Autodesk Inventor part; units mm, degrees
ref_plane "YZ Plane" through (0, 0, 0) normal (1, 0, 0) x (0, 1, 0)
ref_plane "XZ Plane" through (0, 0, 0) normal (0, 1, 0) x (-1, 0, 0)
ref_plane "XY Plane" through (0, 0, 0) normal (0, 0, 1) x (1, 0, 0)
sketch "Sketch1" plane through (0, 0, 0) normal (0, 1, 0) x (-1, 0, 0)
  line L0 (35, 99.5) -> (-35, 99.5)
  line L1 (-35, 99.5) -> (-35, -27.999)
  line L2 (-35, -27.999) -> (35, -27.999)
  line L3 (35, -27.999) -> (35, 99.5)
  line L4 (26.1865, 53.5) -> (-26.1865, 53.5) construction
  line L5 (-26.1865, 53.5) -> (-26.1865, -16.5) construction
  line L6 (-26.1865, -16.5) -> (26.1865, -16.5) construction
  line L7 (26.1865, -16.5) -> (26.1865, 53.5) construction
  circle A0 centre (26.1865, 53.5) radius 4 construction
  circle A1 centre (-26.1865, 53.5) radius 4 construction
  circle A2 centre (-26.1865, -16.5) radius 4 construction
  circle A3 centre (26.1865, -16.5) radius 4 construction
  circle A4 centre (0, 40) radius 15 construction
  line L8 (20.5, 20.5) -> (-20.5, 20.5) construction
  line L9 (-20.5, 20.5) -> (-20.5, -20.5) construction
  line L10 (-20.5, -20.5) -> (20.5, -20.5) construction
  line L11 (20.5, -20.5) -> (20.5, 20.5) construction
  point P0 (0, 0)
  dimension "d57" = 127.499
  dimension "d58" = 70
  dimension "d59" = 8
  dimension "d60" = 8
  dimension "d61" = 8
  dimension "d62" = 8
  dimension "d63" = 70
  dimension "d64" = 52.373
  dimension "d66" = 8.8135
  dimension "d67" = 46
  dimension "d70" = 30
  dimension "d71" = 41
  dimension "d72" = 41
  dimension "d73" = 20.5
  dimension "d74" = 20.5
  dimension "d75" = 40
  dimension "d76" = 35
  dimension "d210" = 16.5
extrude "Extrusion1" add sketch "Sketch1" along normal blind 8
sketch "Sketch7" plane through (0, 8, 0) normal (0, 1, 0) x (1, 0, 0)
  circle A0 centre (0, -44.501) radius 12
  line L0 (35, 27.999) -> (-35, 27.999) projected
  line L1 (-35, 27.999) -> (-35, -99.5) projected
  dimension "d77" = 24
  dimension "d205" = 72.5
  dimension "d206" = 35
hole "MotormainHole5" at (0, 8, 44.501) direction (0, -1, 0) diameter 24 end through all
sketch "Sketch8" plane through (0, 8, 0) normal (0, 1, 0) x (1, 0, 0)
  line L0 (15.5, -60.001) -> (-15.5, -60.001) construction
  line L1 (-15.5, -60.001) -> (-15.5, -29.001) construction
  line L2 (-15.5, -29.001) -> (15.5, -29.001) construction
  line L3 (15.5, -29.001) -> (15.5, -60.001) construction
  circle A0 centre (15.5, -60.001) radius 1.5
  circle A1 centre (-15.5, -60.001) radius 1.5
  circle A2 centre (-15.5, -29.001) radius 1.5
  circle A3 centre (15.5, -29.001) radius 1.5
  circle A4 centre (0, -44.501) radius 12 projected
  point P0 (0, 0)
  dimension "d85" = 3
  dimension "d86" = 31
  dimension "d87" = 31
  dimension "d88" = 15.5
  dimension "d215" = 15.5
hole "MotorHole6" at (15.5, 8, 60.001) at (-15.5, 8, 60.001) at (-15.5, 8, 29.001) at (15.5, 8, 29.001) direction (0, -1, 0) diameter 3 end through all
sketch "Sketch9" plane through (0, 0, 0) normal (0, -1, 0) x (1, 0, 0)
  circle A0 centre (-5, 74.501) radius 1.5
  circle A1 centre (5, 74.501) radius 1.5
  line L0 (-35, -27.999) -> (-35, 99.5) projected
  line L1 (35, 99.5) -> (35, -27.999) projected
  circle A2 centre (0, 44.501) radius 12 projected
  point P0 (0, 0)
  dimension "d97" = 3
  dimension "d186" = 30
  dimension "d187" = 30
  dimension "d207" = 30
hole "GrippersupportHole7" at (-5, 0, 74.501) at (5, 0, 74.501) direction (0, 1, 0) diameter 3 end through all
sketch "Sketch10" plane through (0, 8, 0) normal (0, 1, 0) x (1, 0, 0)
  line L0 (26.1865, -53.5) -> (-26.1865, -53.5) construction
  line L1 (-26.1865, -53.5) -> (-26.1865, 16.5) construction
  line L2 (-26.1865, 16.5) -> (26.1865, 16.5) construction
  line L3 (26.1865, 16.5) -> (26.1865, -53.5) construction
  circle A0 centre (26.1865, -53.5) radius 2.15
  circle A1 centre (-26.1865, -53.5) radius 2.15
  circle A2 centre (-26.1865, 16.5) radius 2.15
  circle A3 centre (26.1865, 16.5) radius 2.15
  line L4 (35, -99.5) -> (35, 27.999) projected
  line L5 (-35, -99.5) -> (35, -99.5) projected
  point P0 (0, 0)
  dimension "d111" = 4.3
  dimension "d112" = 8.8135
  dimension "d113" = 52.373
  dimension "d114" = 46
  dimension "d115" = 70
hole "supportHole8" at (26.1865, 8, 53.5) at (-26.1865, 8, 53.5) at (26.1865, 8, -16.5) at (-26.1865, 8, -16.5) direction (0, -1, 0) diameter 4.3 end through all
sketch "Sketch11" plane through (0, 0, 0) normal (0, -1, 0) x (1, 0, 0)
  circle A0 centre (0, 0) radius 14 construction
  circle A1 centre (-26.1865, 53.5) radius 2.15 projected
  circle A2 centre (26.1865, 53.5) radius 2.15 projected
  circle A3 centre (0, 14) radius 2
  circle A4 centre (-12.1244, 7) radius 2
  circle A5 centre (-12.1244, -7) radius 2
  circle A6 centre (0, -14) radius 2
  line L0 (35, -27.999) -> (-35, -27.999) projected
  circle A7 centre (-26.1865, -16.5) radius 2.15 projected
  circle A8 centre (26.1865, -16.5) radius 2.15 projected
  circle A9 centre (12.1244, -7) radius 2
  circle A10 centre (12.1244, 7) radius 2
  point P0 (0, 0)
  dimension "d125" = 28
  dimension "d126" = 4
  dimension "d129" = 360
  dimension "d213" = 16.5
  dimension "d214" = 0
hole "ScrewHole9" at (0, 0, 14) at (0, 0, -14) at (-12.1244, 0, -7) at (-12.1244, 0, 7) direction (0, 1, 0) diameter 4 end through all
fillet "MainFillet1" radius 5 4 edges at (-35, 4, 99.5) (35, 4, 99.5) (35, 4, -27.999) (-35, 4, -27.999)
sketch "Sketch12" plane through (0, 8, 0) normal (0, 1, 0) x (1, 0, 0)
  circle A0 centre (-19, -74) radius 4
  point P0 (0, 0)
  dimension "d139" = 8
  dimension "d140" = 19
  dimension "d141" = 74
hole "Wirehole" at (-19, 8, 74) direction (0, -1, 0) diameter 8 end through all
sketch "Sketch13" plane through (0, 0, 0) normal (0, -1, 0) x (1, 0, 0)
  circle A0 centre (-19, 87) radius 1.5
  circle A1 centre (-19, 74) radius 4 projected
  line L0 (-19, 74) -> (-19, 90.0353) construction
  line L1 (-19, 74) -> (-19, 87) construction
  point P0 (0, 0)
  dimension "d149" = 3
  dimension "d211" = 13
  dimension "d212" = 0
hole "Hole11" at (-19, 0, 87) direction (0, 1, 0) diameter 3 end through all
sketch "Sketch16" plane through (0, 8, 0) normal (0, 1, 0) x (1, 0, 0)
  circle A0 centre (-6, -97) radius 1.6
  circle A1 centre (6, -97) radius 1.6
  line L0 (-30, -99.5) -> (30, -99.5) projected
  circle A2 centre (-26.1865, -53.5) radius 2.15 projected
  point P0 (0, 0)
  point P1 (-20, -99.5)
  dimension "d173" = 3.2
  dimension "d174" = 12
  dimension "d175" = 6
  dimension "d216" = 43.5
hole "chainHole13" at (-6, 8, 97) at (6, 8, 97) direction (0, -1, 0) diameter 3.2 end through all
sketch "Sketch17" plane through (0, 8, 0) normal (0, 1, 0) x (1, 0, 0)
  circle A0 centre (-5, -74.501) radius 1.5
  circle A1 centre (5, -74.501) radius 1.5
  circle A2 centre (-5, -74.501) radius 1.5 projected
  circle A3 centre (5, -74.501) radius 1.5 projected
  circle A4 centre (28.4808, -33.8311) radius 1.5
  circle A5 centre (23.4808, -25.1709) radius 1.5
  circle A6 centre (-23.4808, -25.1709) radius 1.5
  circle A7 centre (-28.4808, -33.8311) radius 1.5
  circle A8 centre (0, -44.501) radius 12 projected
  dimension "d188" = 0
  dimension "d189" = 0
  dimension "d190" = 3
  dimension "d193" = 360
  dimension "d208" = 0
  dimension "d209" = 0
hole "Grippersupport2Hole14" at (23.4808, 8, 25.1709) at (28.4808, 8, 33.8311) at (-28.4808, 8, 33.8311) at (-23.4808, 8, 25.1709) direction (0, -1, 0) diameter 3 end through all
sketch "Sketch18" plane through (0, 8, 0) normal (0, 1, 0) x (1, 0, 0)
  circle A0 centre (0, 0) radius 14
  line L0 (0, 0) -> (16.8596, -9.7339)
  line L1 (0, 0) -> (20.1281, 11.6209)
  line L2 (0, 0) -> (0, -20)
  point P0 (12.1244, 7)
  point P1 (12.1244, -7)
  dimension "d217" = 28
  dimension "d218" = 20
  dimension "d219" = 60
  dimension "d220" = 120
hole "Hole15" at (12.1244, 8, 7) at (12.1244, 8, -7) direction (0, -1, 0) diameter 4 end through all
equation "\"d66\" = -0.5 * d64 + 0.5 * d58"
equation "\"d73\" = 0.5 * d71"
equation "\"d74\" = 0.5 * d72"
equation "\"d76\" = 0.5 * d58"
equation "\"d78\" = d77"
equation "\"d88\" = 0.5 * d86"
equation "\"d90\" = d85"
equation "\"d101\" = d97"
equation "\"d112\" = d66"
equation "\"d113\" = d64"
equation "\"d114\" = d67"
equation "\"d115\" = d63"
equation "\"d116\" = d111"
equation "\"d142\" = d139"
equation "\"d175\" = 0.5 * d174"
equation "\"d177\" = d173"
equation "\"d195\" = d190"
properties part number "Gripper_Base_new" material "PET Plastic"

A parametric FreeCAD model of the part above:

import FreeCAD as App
import Part
import Sketcher
from FreeCAD import Vector
Q = App.Units.Quantity


def edges_at(feature, points):
    """Names of the edges that pass closest to the given points."""
    edges = feature.Shape.Edges
    near = lambda p: min(range(len(edges)), key=lambda i: edges[i].distToShape(Part.Vertex(*p))[0])
    return sorted({f"Edge{near(p) + 1}" for p in points})


def add_polygon(sketch, points):
    """Adds a closed chain of lines whose ends are joined by coincident constraints."""
    first, n = sketch.GeometryCount, len(points)
    for a, b in zip(points, points[1:] + points[:1]):
        sketch.addGeometry(Part.LineSegment(App.Vector(*a, 0), App.Vector(*b, 0)), False)
    for i in range(n):
        sketch.addConstraint(Sketcher.Constraint("Coincident", first + i, 2, first + (i + 1) % n, 1))

doc = App.newDocument("Part")
params = doc.addObject("Spreadsheet::Sheet", "Params")
for row, (alias, value) in enumerate([
    ("sketch1_width", "70 mm"),
    ("pad1_length", "8 mm"),
    ("sketch2_diameter", "24 mm"),
    ("hole_diameter", "24 mm"),
    ("sketch3_diameter", "3 mm"),
    ("hole2_diameter", "3 mm"),
    ("sketch4_diameter", "3 mm"),
    ("hole3_diameter", "3 mm"),
    ("sketch5_diameter", "4.3 mm"),
    ("hole4_diameter", "4.3 mm"),
    ("sketch6_diameter", "4 mm"),
    ("hole5_diameter", "4 mm"),
    ("fillet_radius", "5 mm"),
    ("sketch7_diameter", "8 mm"),
    ("hole6_diameter", "8 mm"),
    ("sketch8_diameter", "3 mm"),
    ("hole7_diameter", "3 mm"),
    ("sketch9_diameter", "3.2 mm"),
    ("hole8_diameter", "3.2 mm"),
    ("sketch10_diameter", "3 mm"),
    ("hole9_diameter", "3 mm"),
    ("sketch11_diameter", "4 mm"),
    ("hole10_diameter", "4 mm"),
], start=1):
    params.set(f"A{row}", alias)
    params.set(f"B{row}", "=" + value)
    params.setAlias(f"B{row}", alias)

body = doc.addObject("PartDesign::Body", "Body")

# Sketch on XZ plane
sketch1 = body.newObject("Sketcher::SketchObject", "Sketch")
sketch1.AttachmentSupport = (doc.getObject("XZ_Plane"), [""])
sketch1.MapMode = "FlatFace"
add_polygon(sketch1, [(-35, -27.999), (-35, 99.5), (35, 99.5), (35, -27.999)])  # lines 0-3
sketch1.addConstraint(Sketcher.Constraint("Vertical", 0))
sketch1.addConstraint(Sketcher.Constraint("Horizontal", 1))
sketch1.addConstraint(Sketcher.Constraint("Vertical", 2))
sketch1.addConstraint(Sketcher.Constraint("Horizontal", 3))
sketch1.addConstraint(Sketcher.Constraint("DistanceX", 1, 1, 1, 2, Q("70 mm")))
sketch1.addConstraint(Sketcher.Constraint("DistanceX", 0, 2, -1, 1, Q("35 mm")))
sketch1.addConstraint(Sketcher.Constraint("DistanceY", 0, 1, 0, 2, Q("127.499 mm")))
sketch1.addConstraint(Sketcher.Constraint("DistanceY", -1, 1, 0, 2, Q("99.5 mm")))
sketch1.setExpression("Constraints[8]", "Params.sketch1_width")
pad1 = body.newObject("PartDesign::Pad", "Pad")
pad1.Profile = sketch1
pad1.setExpression("Length", "Params.pad1_length")
pad1.Reversed = True

# Sketch on XZ plane
sketch2 = body.newObject("Sketcher::SketchObject", "Sketch001")
sketch2.AttachmentSupport = (doc.getObject("XZ_Plane"), [""])
sketch2.MapMode = "FlatFace"
sketch2.AttachmentOffset = App.Placement(Vector(0, 0, -8), App.Rotation())
sketch2.addGeometry(Part.Circle(Vector(0, 44.501, 0), Vector(0, 0, 1), 12), False)
sketch2.addConstraint(Sketcher.Constraint("PointOnObject", 0, 3, -2))
sketch2.addConstraint(Sketcher.Constraint("Diameter", 0, Q("24 mm")))
sketch2.addConstraint(Sketcher.Constraint("DistanceY", -1, 1, 0, 3, Q("44.501 mm")))
sketch2.setExpression("Constraints[1]", "Params.sketch2_diameter")
doc.recompute()
hole = body.newObject("PartDesign::Hole", "Hole")
hole.Profile = sketch2
hole.ThreadType = "None"
hole.setExpression("Diameter", "Params.hole_diameter")
hole.DepthType = "ThroughAll"
hole.Reversed = True

# Sketch on XZ plane
sketch3 = body.newObject("Sketcher::SketchObject", "Sketch002")
sketch3.AttachmentSupport = (doc.getObject("XZ_Plane"), [""])
sketch3.MapMode = "FlatFace"
sketch3.AttachmentOffset = App.Placement(Vector(0, 0, -8), App.Rotation())
sketch3.addGeometry(Part.Circle(Vector(15.5, 60.001, 0), Vector(0, 0, 1), 1.5), False)
sketch3.addGeometry(Part.Circle(Vector(-15.5, 60.001, 0), Vector(0, 0, 1), 1.5), False)
sketch3.addGeometry(Part.Circle(Vector(-15.5, 29.001, 0), Vector(0, 0, 1), 1.5), False)
sketch3.addGeometry(Part.Circle(Vector(15.5, 29.001, 0), Vector(0, 0, 1), 1.5), False)
sketch3.addConstraint(Sketcher.Constraint("Equal", 0, 1))
sketch3.addConstraint(Sketcher.Constraint("Equal", 1, 2))
sketch3.addConstraint(Sketcher.Constraint("Equal", 2, 3))
sketch3.addConstraint(Sketcher.Constraint("Symmetric", 0, 3, 1, 3, -2))
sketch3.addConstraint(Sketcher.Constraint("Symmetric", 2, 3, 3, 3, -2))
sketch3.addConstraint(Sketcher.Constraint("Vertical", 1, 3, 2, 3))
sketch3.addConstraint(Sketcher.Constraint("Diameter", 0, Q("3 mm")))
sketch3.addConstraint(Sketcher.Constraint("DistanceX", 1, 3, 0, 3, Q("31 mm")))
sketch3.addConstraint(Sketcher.Constraint("DistanceY", 2, 3, 1, 3, Q("31 mm")))
sketch3.addConstraint(Sketcher.Constraint("DistanceY", -1, 1, 0, 3, Q("60.001 mm")))
sketch3.setExpression("Constraints[6]", "Params.sketch3_diameter")
doc.recompute()
hole2 = body.newObject("PartDesign::Hole", "Hole001")
hole2.Profile = sketch3
hole2.ThreadType = "None"
hole2.setExpression("Diameter", "Params.hole2_diameter")
hole2.DepthType = "ThroughAll"
hole2.Reversed = True

# Sketch on XZ plane
sketch4 = body.newObject("Sketcher::SketchObject", "Sketch003")
sketch4.AttachmentSupport = (doc.getObject("XZ_Plane"), [""])
sketch4.MapMode = "FlatFace"
sketch4.addGeometry(Part.Circle(Vector(-5, 74.501, 0), Vector(0, 0, 1), 1.5), False)
sketch4.addGeometry(Part.Circle(Vector(5, 74.501, 0), Vector(0, 0, 1), 1.5), False)
sketch4.addConstraint(Sketcher.Constraint("Equal", 0, 1))
sketch4.addConstraint(Sketcher.Constraint("Symmetric", 0, 3, 1, 3, -2))
sketch4.addConstraint(Sketcher.Constraint("Diameter", 0, Q("3 mm")))
sketch4.addConstraint(Sketcher.Constraint("DistanceX", 0, 3, -1, 1, Q("5 mm")))
sketch4.addConstraint(Sketcher.Constraint("DistanceY", -1, 1, 0, 3, Q("74.501 mm")))
sketch4.setExpression("Constraints[2]", "Params.sketch4_diameter")
doc.recompute()
hole3 = body.newObject("PartDesign::Hole", "Hole002")
hole3.Profile = sketch4
hole3.ThreadType = "None"
hole3.setExpression("Diameter", "Params.hole3_diameter")
hole3.DepthType = "ThroughAll"

# Sketch on XZ plane
sketch5 = body.newObject("Sketcher::SketchObject", "Sketch004")
sketch5.AttachmentSupport = (doc.getObject("XZ_Plane"), [""])
sketch5.MapMode = "FlatFace"
sketch5.AttachmentOffset = App.Placement(Vector(0, 0, -8), App.Rotation())
sketch5.addGeometry(Part.Circle(Vector(26.1865, 53.5, 0), Vector(0, 0, 1), 2.15), False)
sketch5.addGeometry(Part.Circle(Vector(-26.1865, 53.5, 0), Vector(0, 0, 1), 2.15), False)
sketch5.addGeometry(Part.Circle(Vector(26.1865, -16.5, 0), Vector(0, 0, 1), 2.15), False)
sketch5.addGeometry(Part.Circle(Vector(-26.1865, -16.5, 0), Vector(0, 0, 1), 2.15), False)
sketch5.addConstraint(Sketcher.Constraint("Equal", 0, 1))
sketch5.addConstraint(Sketcher.Constraint("Equal", 1, 2))
sketch5.addConstraint(Sketcher.Constraint("Equal", 2, 3))
sketch5.addConstraint(Sketcher.Constraint("Symmetric", 0, 3, 1, 3, -2))
sketch5.addConstraint(Sketcher.Constraint("Symmetric", 2, 3, 3, 3, -2))
sketch5.addConstraint(Sketcher.Constraint("Vertical", 0, 3, 2, 3))
sketch5.addConstraint(Sketcher.Constraint("Diameter", 0, Q("4.3 mm")))
sketch5.addConstraint(Sketcher.Constraint("DistanceY", 2, 3, 0, 3, Q("70 mm")))
sketch5.addConstraint(Sketcher.Constraint("DistanceY", -1, 1, 0, 3, Q("53.5 mm")))
sketch5.addConstraint(Sketcher.Constraint("DistanceX", 1, 3, 0, 3, Q("52.373 mm")))
sketch5.setExpression("Constraints[6]", "Params.sketch5_diameter")
doc.recompute()
hole4 = body.newObject("PartDesign::Hole", "Hole003")
hole4.Profile = sketch5
hole4.ThreadType = "None"
hole4.setExpression("Diameter", "Params.hole4_diameter")
hole4.DepthType = "ThroughAll"
hole4.Reversed = True

# Sketch on XZ plane
sketch6 = body.newObject("Sketcher::SketchObject", "Sketch005")
sketch6.AttachmentSupport = (doc.getObject("XZ_Plane"), [""])
sketch6.MapMode = "FlatFace"
sketch6.addGeometry(Part.Circle(Vector(0, 14, 0), Vector(0, 0, 1), 2), False)
sketch6.addGeometry(Part.Circle(Vector(0, -14, 0), Vector(0, 0, 1), 2), False)
sketch6.addGeometry(Part.Circle(Vector(-12.1244, -7, 0), Vector(0, 0, 1), 2), False)
sketch6.addGeometry(Part.Circle(Vector(-12.1244, 7, 0), Vector(0, 0, 1), 2), False)
sketch6.addConstraint(Sketcher.Constraint("Equal", 0, 1))
sketch6.addConstraint(Sketcher.Constraint("Equal", 1, 2))
sketch6.addConstraint(Sketcher.Constraint("Equal", 2, 3))
sketch6.addConstraint(Sketcher.Constraint("Symmetric", 0, 3, 1, 3, -1, 1))
sketch6.addConstraint(Sketcher.Constraint("Symmetric", 2, 3, 3, 3, -1))
sketch6.addConstraint(Sketcher.Constraint("PointOnObject", 0, 3, -2))
sketch6.addConstraint(Sketcher.Constraint("Diameter", 0, Q("4 mm")))
sketch6.addConstraint(Sketcher.Constraint("DistanceY", -1, 1, 0, 3, Q("14 mm")))
sketch6.addConstraint(Sketcher.Constraint("DistanceY", 2, 3, -1, 1, Q("7 mm")))
sketch6.addConstraint(Sketcher.Constraint("DistanceX", 2, 3, -1, 1, Q("12.1244 mm")))
sketch6.setExpression("Constraints[6]", "Params.sketch6_diameter")
doc.recompute()
hole5 = body.newObject("PartDesign::Hole", "Hole004")
hole5.Profile = sketch6
hole5.ThreadType = "None"
hole5.setExpression("Diameter", "Params.hole5_diameter")
hole5.DepthType = "ThroughAll"
doc.recompute()

fillet = body.newObject("PartDesign::Fillet", "Fillet")
fillet.Base = (hole5, edges_at(hole5, [
    (-35, 4, 99.5),
    (35, 4, 99.5),
    (35, 4, -27.999),
    (-35, 4, -27.999),
]))
fillet.setExpression("Radius", "Params.fillet_radius")

# Sketch on XZ plane
sketch7 = body.newObject("Sketcher::SketchObject", "Sketch006")
sketch7.AttachmentSupport = (doc.getObject("XZ_Plane"), [""])
sketch7.MapMode = "FlatFace"
sketch7.AttachmentOffset = App.Placement(Vector(0, 0, -8), App.Rotation())
sketch7.addGeometry(Part.Circle(Vector(-19, 74, 0), Vector(0, 0, 1), 4), False)
sketch7.addConstraint(Sketcher.Constraint("Diameter", 0, Q("8 mm")))
sketch7.addConstraint(Sketcher.Constraint("DistanceX", 0, 3, -1, 1, Q("19 mm")))
sketch7.addConstraint(Sketcher.Constraint("DistanceY", -1, 1, 0, 3, Q("74 mm")))
sketch7.setExpression("Constraints[0]", "Params.sketch7_diameter")
doc.recompute()
hole6 = body.newObject("PartDesign::Hole", "Hole005")
hole6.Profile = sketch7
hole6.ThreadType = "None"
hole6.setExpression("Diameter", "Params.hole6_diameter")
hole6.DepthType = "ThroughAll"
hole6.Reversed = True

# Sketch on XZ plane
sketch8 = body.newObject("Sketcher::SketchObject", "Sketch007")
sketch8.AttachmentSupport = (doc.getObject("XZ_Plane"), [""])
sketch8.MapMode = "FlatFace"
sketch8.addGeometry(Part.Circle(Vector(-19, 87, 0), Vector(0, 0, 1), 1.5), False)
sketch8.addConstraint(Sketcher.Constraint("Diameter", 0, Q("3 mm")))
sketch8.addConstraint(Sketcher.Constraint("DistanceX", 0, 3, -1, 1, Q("19 mm")))
sketch8.addConstraint(Sketcher.Constraint("DistanceY", -1, 1, 0, 3, Q("87 mm")))
sketch8.setExpression("Constraints[0]", "Params.sketch8_diameter")
doc.recompute()
hole7 = body.newObject("PartDesign::Hole", "Hole006")
hole7.Profile = sketch8
hole7.ThreadType = "None"
hole7.setExpression("Diameter", "Params.hole7_diameter")
hole7.DepthType = "ThroughAll"

# Sketch on XZ plane
sketch9 = body.newObject("Sketcher::SketchObject", "Sketch008")
sketch9.AttachmentSupport = (doc.getObject("XZ_Plane"), [""])
sketch9.MapMode = "FlatFace"
sketch9.AttachmentOffset = App.Placement(Vector(0, 0, -8), App.Rotation())
sketch9.addGeometry(Part.Circle(Vector(-6, 97, 0), Vector(0, 0, 1), 1.6), False)
sketch9.addGeometry(Part.Circle(Vector(6, 97, 0), Vector(0, 0, 1), 1.6), False)
sketch9.addConstraint(Sketcher.Constraint("Equal", 0, 1))
sketch9.addConstraint(Sketcher.Constraint("Symmetric", 0, 3, 1, 3, -2))
sketch9.addConstraint(Sketcher.Constraint("Diameter", 0, Q("3.2 mm")))
sketch9.addConstraint(Sketcher.Constraint("DistanceX", 0, 3, -1, 1, Q("6 mm")))
sketch9.addConstraint(Sketcher.Constraint("DistanceY", -1, 1, 0, 3, Q("97 mm")))
sketch9.setExpression("Constraints[2]", "Params.sketch9_diameter")
doc.recompute()
hole8 = body.newObject("PartDesign::Hole", "Hole007")
hole8.Profile = sketch9
hole8.ThreadType = "None"
hole8.setExpression("Diameter", "Params.hole8_diameter")
hole8.DepthType = "ThroughAll"
hole8.Reversed = True

# Sketch on XZ plane
sketch10 = body.newObject("Sketcher::SketchObject", "Sketch009")
sketch10.AttachmentSupport = (doc.getObject("XZ_Plane"), [""])
sketch10.MapMode = "FlatFace"
sketch10.AttachmentOffset = App.Placement(Vector(0, 0, -8), App.Rotation())
sketch10.addGeometry(Part.Circle(Vector(23.4808, 25.1709, 0), Vector(0, 0, 1), 1.5), False)
sketch10.addGeometry(Part.Circle(Vector(28.4808, 33.8311, 0), Vector(0, 0, 1), 1.5), False)
sketch10.addGeometry(Part.Circle(Vector(-28.4808, 33.8311, 0), Vector(0, 0, 1), 1.5), False)
sketch10.addGeometry(Part.Circle(Vector(-23.4808, 25.1709, 0), Vector(0, 0, 1), 1.5), False)
sketch10.addConstraint(Sketcher.Constraint("Equal", 0, 1))
sketch10.addConstraint(Sketcher.Constraint("Equal", 1, 2))
sketch10.addConstraint(Sketcher.Constraint("Equal", 2, 3))
sketch10.addConstraint(Sketcher.Constraint("Symmetric", 1, 3, 2, 3, -2))
sketch10.addConstraint(Sketcher.Constraint("Symmetric", 0, 3, 3, 3, -2))
sketch10.addConstraint(Sketcher.Constraint("Diameter", 0, Q("3 mm")))
sketch10.addConstraint(Sketcher.Constraint("DistanceX", 0, 3, 1, 3, Q("5 mm")))
sketch10.addConstraint(Sketcher.Constraint("DistanceY", -1, 1, 0, 3, Q("25.171 mm")))
sketch10.addConstraint(Sketcher.Constraint("DistanceY", -1, 1, 1, 3, Q("33.831 mm")))
sketch10.addConstraint(Sketcher.Constraint("DistanceX", -1, 1, 0, 3, Q("23.4808 mm")))
sketch10.setExpression("Constraints[5]", "Params.sketch10_diameter")
doc.recompute()
hole9 = body.newObject("PartDesign::Hole", "Hole008")
hole9.Profile = sketch10
hole9.ThreadType = "None"
hole9.setExpression("Diameter", "Params.hole9_diameter")
hole9.DepthType = "ThroughAll"
hole9.Reversed = True

# Sketch on XZ plane
sketch11 = body.newObject("Sketcher::SketchObject", "Sketch010")
sketch11.AttachmentSupport = (doc.getObject("XZ_Plane"), [""])
sketch11.MapMode = "FlatFace"
sketch11.AttachmentOffset = App.Placement(Vector(0, 0, -8), App.Rotation())
sketch11.addGeometry(Part.Circle(Vector(12.1244, 7, 0), Vector(0, 0, 1), 2), False)
sketch11.addGeometry(Part.Circle(Vector(12.1244, -7, 0), Vector(0, 0, 1), 2), False)
sketch11.addConstraint(Sketcher.Constraint("Equal", 0, 1))
sketch11.addConstraint(Sketcher.Constraint("Symmetric", 0, 3, 1, 3, -1))
sketch11.addConstraint(Sketcher.Constraint("Diameter", 0, Q("4 mm")))
sketch11.addConstraint(Sketcher.Constraint("DistanceY", -1, 1, 0, 3, Q("7 mm")))
sketch11.addConstraint(Sketcher.Constraint("DistanceX", -1, 1, 0, 3, Q("12.1244 mm")))
sketch11.setExpression("Constraints[2]", "Params.sketch11_diameter")
doc.recompute()
hole10 = body.newObject("PartDesign::Hole", "Hole009")
hole10.Profile = sketch11
hole10.ThreadType = "None"
hole10.setExpression("Diameter", "Params.hole10_diameter")
hole10.DepthType = "ThroughAll"
hole10.Reversed = True

doc.recompute()
